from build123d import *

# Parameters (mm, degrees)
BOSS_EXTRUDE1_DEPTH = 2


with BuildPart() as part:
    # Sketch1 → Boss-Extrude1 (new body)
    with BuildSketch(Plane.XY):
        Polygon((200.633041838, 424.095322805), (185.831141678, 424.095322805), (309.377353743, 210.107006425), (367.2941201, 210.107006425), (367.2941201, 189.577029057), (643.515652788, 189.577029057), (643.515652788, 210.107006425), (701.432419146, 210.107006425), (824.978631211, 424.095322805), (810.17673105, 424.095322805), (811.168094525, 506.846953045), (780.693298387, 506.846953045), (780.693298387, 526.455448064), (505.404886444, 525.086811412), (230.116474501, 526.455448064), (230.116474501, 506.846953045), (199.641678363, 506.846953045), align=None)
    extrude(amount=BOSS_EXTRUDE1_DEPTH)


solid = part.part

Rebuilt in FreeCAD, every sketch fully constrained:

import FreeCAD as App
import Part
import Sketcher
Q = App.Units.Quantity


def add_polygon(sketch, points):
    """Adds a closed chain of lines whose ends are joined by coincident constraints."""
    first, n = sketch.GeometryCount, len(points)
    for a, b in zip(points, points[1:] + points[:1]):
        sketch.addGeometry(Part.LineSegment(App.Vector(*a, 0), App.Vector(*b, 0)), False)
    for i in range(n):
        sketch.addConstraint(Sketcher.Constraint("Coincident", first + i, 2, first + (i + 1) % n, 1))

doc = App.newDocument("Part")
body = doc.addObject("PartDesign::Body", "Body")

sketch1 = doc.addObject("Sketcher::SketchObject", "Sketch")
body.addObject(sketch1)
sketch1.AttachmentSupport = (doc.XY_Plane, [""])
sketch1.MapMode = "FlatFace"
add_polygon(sketch1, [(201, 424), (186, 424), (309, 210), (367, 210), (367, 190), (644, 190), (644, 210), (701, 210), (825, 424), (810, 424), (811, 507), (781, 507), (781, 526), (505, 525), (230, 526), (230, 507), (200, 507)])
sketch1.addConstraint(Sketcher.Constraint("Horizontal", 0))
sketch1.addConstraint(Sketcher.Constraint("Horizontal", 2))
sketch1.addConstraint(Sketcher.Constraint("Vertical", 3))
sketch1.addConstraint(Sketcher.Constraint("Horizontal", 4))
sketch1.addConstraint(Sketcher.Constraint("Vertical", 5))
sketch1.addConstraint(Sketcher.Constraint("Horizontal", 6))
sketch1.addConstraint(Sketcher.Constraint("Horizontal", 8))
sketch1.addConstraint(Sketcher.Constraint("Horizontal", 10))
sketch1.addConstraint(Sketcher.Constraint("Vertical", 11))
sketch1.addConstraint(Sketcher.Constraint("Vertical", 14))
sketch1.addConstraint(Sketcher.Constraint("Horizontal", 15))
sketch1.addConstraint(Sketcher.Constraint("Horizontal", 2, 2, 5, 2))
sketch1.addConstraint(Sketcher.Constraint("Horizontal", 0, 2, 7, 2))
sketch1.addConstraint(Sketcher.Constraint("Horizontal", 11, 2, 13, 2))
sketch1.addConstraint(Sketcher.Constraint("Horizontal", 10, 2, 14, 2))
sketch1.addConstraint(Sketcher.Constraint("Equal", 2, 6))
sketch1.addConstraint(Sketcher.Constraint("Equal", 0, 8))
sketch1.addConstraint(Sketcher.Constraint("Equal", 10, 15))
sketch1.addConstraint(Sketcher.Constraint("Equal", 1, 7))
sketch1.addConstraint(Sketcher.Constraint("Equal", 12, 13))
sketch1.addConstraint(Sketcher.Constraint("Equal", 9, 16))
sketch1.addConstraint(Sketcher.Constraint("Angle", 1, Q("-60 deg")))
sketch1.addConstraint(Sketcher.Constraint("DistanceX", 0, 2, 0, 1, Q("14.8019 mm")))
sketch1.addConstraint(Sketcher.Constraint("DistanceX", -1, 1, 10, 2, Q("780.693298 mm")))
sketch1.addConstraint(Sketcher.Constraint("DistanceX", 1, 2, 4, 2, Q("334.138299 mm")))
sketch1.addConstraint(Sketcher.Constraint("Distance", 9, Q("82.757568 mm")))
sketch1.addConstraint(Sketcher.Constraint("DistanceX", 2, 1, 2, 2, Q("57.916766 mm")))
sketch1.addConstraint(Sketcher.Constraint("DistanceX", 10, 2, 10, 1, Q("30.474796 mm")))
sketch1.addConstraint(Sketcher.Constraint("DistanceY", 3, 2, 3, 1, Q("20.529977 mm")))
sketch1.addConstraint(Sketcher.Constraint("DistanceY", 11, 1, 11, 2, Q("19.608495 mm")))
sketch1.addConstraint(Sketcher.Constraint("DistanceX", -1, 1, 0, 2, Q("185.831142 mm")))
sketch1.addConstraint(Sketcher.Constraint("DistanceX", -1, 1, 2, 2, Q("367.29412 mm")))
sketch1.addConstraint(Sketcher.Constraint("DistanceY", -1, 1, 3, 2, Q("189.577029 mm")))
sketch1.addConstraint(Sketcher.Constraint("DistanceY", -1, 1, 12, 2, Q("525.086811 mm")))
pad1 = doc.addObject("PartDesign::Pad", "Pad")
body.addObject(pad1)
pad1.Profile = sketch1
pad1.Length = 2

doc.recompute()
